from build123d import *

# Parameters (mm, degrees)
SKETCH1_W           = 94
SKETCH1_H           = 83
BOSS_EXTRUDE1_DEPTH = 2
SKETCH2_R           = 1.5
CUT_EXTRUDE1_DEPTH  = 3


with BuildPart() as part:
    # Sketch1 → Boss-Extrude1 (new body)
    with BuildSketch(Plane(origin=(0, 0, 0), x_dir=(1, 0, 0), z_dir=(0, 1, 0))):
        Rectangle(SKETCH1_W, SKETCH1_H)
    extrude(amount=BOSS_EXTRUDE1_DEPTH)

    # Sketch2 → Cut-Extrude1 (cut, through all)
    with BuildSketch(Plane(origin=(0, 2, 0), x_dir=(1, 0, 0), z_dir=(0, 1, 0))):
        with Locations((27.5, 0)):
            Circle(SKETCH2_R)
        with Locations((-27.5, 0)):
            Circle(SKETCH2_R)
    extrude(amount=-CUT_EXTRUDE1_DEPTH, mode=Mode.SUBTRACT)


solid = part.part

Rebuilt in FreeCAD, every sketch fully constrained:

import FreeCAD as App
import Part
import Sketcher

V = App.Vector


def add_polygon(sketch, points):
    """Adds a closed chain of lines whose ends are joined by coincident constraints."""
    first, n = sketch.GeometryCount, len(points)
    for a, b in zip(points, points[1:] + points[:1]):
        sketch.addGeometry(Part.LineSegment(App.Vector(*a, 0), App.Vector(*b, 0)), False)
    for i in range(n):
        sketch.addConstraint(Sketcher.Constraint("Coincident", first + i, 2, first + (i + 1) % n, 1))

doc = App.newDocument("Part")
body = doc.addObject("PartDesign::Body", "Body")

# Sketch on XZ plane
sketch1 = body.newObject("Sketcher::SketchObject", "Sketch")
sketch1.AttachmentSupport = (doc.getObject("XZ_Plane"), [""])
sketch1.MapMode = "FlatFace"
add_polygon(sketch1, [(-47, -41.5), (-47, 41.5), (47, 41.5), (47, -41.5)])  # lines 0-3
sketch1.addConstraint([
    Sketcher.Constraint("Vertical", 0),
    Sketcher.Constraint("Horizontal", 1),
    Sketcher.Constraint("Vertical", 2),
    Sketcher.Constraint("Horizontal", 3),
    Sketcher.Constraint("Symmetric", 0, 2, 2, 2, -1, 1),
    Sketcher.Constraint("DistanceX", 1, 1, 1, 2, 94.0),
    Sketcher.Constraint("DistanceY", 0, 1, 0, 2, 83.0),
])
pad1 = body.newObject("PartDesign::Pad", "Pad")
pad1.Profile = sketch1
pad1.Length = 2
pad1.Reversed = True

# Sketch on XZ plane
sketch2 = body.newObject("Sketcher::SketchObject", "Sketch001")
sketch2.AttachmentSupport = (doc.getObject("XZ_Plane"), [""])
sketch2.MapMode = "FlatFace"
sketch2.AttachmentOffset = App.Placement(V(0, 0, -2), App.Rotation())
sketch2.addGeometry([
    Part.Circle(V(27.5, 0, 0), V(0, 0, 1), 1.5),
    Part.Circle(V(-27.5, 0, 0), V(0, 0, 1), 1.5),
], False)
sketch2.addConstraint([
    Sketcher.Constraint("Equal", 0, 1),
    Sketcher.Constraint("Symmetric", 0, 3, 1, 3, -1, 1),
    Sketcher.Constraint("PointOnObject", 0, 3, -1),
    Sketcher.Constraint("Diameter", 0, 3.0),
    Sketcher.Constraint("DistanceX", 1, 3, 0, 3, 55.0),
])
pocket1 = body.newObject("PartDesign::Pocket", "Pocket")
pocket1.Profile = sketch2
pocket1.Type = "ThroughAll"
pocket1.Reversed = True

doc.recompute()
